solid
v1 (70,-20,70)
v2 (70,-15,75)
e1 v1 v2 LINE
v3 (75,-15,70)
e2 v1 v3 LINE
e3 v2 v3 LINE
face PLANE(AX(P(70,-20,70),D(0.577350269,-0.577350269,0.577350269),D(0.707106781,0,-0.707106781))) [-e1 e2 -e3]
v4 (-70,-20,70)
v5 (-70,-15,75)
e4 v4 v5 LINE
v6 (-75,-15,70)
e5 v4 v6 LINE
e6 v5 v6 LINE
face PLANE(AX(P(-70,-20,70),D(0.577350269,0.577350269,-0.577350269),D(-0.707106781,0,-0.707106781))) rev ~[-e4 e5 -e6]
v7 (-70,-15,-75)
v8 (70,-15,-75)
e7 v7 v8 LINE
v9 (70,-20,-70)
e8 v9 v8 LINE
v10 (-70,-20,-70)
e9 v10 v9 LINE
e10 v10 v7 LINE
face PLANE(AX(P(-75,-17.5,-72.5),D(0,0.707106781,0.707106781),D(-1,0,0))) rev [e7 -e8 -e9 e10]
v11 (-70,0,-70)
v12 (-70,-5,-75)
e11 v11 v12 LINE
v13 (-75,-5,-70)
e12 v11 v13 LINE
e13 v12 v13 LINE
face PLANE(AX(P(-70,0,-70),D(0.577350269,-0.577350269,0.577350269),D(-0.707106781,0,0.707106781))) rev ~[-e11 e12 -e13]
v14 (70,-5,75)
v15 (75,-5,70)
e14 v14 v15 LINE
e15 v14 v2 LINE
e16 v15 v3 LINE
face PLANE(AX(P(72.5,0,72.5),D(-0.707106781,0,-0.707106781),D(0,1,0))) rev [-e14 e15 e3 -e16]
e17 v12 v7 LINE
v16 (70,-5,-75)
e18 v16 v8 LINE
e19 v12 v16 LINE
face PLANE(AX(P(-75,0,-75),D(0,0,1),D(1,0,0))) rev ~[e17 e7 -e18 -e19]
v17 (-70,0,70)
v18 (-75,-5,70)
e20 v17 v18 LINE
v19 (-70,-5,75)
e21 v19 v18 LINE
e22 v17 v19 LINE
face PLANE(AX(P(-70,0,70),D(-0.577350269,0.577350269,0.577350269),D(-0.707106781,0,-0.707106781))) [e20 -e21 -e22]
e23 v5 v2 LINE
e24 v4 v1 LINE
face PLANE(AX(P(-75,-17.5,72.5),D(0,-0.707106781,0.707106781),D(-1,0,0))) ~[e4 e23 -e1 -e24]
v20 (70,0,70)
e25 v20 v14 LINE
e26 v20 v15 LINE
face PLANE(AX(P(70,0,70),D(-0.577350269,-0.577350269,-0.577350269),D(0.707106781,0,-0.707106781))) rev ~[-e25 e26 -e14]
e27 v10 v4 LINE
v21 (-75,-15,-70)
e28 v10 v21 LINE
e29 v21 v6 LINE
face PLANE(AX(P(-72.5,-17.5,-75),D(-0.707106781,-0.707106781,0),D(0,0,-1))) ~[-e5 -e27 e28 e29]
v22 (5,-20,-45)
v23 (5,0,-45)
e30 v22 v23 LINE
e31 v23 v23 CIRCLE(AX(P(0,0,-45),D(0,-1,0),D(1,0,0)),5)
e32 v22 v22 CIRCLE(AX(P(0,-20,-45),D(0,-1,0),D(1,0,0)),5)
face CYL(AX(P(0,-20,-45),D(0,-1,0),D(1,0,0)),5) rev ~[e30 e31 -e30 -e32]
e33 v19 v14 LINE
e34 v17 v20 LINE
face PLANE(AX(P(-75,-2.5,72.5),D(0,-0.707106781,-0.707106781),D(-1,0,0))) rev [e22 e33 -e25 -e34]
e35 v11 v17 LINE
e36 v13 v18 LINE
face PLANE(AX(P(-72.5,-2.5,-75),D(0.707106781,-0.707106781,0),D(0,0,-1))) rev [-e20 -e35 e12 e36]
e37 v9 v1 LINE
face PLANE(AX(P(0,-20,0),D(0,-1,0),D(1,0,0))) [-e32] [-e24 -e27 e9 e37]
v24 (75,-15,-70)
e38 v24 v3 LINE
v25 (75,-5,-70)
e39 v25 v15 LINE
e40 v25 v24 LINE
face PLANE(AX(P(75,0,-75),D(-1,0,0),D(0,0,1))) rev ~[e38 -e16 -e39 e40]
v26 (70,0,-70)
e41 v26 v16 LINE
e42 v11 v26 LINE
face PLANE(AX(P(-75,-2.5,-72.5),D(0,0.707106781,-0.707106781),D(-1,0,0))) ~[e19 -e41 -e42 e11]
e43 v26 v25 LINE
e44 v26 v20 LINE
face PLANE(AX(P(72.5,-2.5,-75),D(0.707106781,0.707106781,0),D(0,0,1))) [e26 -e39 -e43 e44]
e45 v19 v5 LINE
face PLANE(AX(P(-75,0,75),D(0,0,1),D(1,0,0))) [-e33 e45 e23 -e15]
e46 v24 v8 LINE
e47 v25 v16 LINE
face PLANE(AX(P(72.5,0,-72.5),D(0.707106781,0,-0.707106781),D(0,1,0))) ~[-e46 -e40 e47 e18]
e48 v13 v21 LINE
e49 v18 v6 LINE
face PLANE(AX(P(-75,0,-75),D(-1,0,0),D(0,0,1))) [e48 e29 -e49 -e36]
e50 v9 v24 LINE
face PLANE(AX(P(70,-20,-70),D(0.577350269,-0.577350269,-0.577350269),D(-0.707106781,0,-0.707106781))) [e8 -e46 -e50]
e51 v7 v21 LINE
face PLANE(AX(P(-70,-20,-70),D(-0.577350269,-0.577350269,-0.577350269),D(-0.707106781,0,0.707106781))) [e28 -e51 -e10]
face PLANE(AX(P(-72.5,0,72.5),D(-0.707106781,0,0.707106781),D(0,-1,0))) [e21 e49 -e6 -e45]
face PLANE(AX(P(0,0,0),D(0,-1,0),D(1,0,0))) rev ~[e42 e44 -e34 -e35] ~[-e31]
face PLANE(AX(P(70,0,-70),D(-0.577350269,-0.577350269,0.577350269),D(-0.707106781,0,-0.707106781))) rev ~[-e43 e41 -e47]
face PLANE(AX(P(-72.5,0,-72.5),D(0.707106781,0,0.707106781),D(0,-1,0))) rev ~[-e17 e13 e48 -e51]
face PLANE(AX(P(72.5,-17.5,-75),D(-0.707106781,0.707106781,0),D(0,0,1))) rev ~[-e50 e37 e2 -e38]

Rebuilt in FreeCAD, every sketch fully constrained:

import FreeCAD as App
import Part
import Sketcher
from FreeCAD import Vector
Q = App.Units.Quantity


def edges_at(feature, points):
    """Names of the edges that pass closest to the given points."""
    edges = feature.Shape.Edges
    near = lambda p: min(range(len(edges)), key=lambda i: edges[i].distToShape(Part.Vertex(*p))[0])
    return sorted({f"Edge{near(p) + 1}" for p in points})

doc = App.newDocument("Part")
body = doc.addObject("PartDesign::Body", "Body")

# Sketch on XZ plane
sketch1 = doc.addObject("Sketcher::SketchObject", "Sketch")
body.addObject(sketch1)
sketch1.AttachmentSupport = (doc.XZ_Plane, [""])
sketch1.MapMode = "FlatFace"
sketch1.addGeometry([
    Part.LineSegment(Vector(-75, 75, 0), Vector(-75, -75, 0)),
    Part.LineSegment(Vector(-75, -75, 0), Vector(75, -75, 0)),
    Part.LineSegment(Vector(75, -75, 0), Vector(75, 75, 0)),
    Part.LineSegment(Vector(75, 75, 0), Vector(-75, 75, 0)),
], False)
sketch1.addConstraint([
    Sketcher.Constraint("Coincident", 0, 2, 1, 1),
    Sketcher.Constraint("Coincident", 1, 2, 2, 1),
    Sketcher.Constraint("Coincident", 2, 2, 3, 1),
    Sketcher.Constraint("Coincident", 3, 2, 0, 1),
    Sketcher.Constraint("Vertical", 0),
    Sketcher.Constraint("Horizontal", 1),
    Sketcher.Constraint("Vertical", 2),
    Sketcher.Constraint("Horizontal", 3),
    Sketcher.Constraint("Symmetric", 0, 2, 2, 2, -1, 1),
    Sketcher.Constraint("Equal", 3, 0),
    Sketcher.Constraint("DistanceX", 1, 1, 1, 2, Q("150 mm")),
])
pad1 = doc.addObject("PartDesign::Pad", "Pad")
body.addObject(pad1)
pad1.Profile = sketch1
pad1.Length = 20

# Sketch on XZ plane
sketch2 = doc.addObject("Sketcher::SketchObject", "Sketch001")
body.addObject(sketch2)
sketch2.AttachmentSupport = (doc.XZ_Plane, [""])
sketch2.MapMode = "FlatFace"
sketch2.AttachmentOffset = App.Placement(Vector(0, 0, 20), App.Rotation())
sketch2.addGeometry(Part.Circle(Vector(0, -45, 0), Vector(0, 0, 1), 5), False)
sketch2.addConstraint([
    Sketcher.Constraint("PointOnObject", 0, 3, -2),
    Sketcher.Constraint("Diameter", 0, Q("10 mm")),
    Sketcher.Constraint("DistanceY", 0, 3, -1, 1, Q("45 mm")),
])
pocket1 = doc.addObject("PartDesign::Pocket", "Pocket")
body.addObject(pocket1)
pocket1.Profile = sketch2
pocket1.Type = "ThroughAll"
doc.recompute()

chamfer = doc.addObject("PartDesign::Chamfer", "Chamfer")
body.addObject(chamfer)
chamfer.Base = (pocket1, edges_at(pocket1, [
    (75, -10, 75),
    (-75, -10, 75),
    (0, 0, 75),
    (0, -20, 75),
    (75, -10, -75),
    (75, 0, 0),
    (75, -20, 0),
    (-75, -10, -75),
    (0, 0, -75),
    (0, -20, -75),
    (-75, 0, 0),
    (-75, -20, 0),
]))
chamfer.Size = 5

doc.recompute()
